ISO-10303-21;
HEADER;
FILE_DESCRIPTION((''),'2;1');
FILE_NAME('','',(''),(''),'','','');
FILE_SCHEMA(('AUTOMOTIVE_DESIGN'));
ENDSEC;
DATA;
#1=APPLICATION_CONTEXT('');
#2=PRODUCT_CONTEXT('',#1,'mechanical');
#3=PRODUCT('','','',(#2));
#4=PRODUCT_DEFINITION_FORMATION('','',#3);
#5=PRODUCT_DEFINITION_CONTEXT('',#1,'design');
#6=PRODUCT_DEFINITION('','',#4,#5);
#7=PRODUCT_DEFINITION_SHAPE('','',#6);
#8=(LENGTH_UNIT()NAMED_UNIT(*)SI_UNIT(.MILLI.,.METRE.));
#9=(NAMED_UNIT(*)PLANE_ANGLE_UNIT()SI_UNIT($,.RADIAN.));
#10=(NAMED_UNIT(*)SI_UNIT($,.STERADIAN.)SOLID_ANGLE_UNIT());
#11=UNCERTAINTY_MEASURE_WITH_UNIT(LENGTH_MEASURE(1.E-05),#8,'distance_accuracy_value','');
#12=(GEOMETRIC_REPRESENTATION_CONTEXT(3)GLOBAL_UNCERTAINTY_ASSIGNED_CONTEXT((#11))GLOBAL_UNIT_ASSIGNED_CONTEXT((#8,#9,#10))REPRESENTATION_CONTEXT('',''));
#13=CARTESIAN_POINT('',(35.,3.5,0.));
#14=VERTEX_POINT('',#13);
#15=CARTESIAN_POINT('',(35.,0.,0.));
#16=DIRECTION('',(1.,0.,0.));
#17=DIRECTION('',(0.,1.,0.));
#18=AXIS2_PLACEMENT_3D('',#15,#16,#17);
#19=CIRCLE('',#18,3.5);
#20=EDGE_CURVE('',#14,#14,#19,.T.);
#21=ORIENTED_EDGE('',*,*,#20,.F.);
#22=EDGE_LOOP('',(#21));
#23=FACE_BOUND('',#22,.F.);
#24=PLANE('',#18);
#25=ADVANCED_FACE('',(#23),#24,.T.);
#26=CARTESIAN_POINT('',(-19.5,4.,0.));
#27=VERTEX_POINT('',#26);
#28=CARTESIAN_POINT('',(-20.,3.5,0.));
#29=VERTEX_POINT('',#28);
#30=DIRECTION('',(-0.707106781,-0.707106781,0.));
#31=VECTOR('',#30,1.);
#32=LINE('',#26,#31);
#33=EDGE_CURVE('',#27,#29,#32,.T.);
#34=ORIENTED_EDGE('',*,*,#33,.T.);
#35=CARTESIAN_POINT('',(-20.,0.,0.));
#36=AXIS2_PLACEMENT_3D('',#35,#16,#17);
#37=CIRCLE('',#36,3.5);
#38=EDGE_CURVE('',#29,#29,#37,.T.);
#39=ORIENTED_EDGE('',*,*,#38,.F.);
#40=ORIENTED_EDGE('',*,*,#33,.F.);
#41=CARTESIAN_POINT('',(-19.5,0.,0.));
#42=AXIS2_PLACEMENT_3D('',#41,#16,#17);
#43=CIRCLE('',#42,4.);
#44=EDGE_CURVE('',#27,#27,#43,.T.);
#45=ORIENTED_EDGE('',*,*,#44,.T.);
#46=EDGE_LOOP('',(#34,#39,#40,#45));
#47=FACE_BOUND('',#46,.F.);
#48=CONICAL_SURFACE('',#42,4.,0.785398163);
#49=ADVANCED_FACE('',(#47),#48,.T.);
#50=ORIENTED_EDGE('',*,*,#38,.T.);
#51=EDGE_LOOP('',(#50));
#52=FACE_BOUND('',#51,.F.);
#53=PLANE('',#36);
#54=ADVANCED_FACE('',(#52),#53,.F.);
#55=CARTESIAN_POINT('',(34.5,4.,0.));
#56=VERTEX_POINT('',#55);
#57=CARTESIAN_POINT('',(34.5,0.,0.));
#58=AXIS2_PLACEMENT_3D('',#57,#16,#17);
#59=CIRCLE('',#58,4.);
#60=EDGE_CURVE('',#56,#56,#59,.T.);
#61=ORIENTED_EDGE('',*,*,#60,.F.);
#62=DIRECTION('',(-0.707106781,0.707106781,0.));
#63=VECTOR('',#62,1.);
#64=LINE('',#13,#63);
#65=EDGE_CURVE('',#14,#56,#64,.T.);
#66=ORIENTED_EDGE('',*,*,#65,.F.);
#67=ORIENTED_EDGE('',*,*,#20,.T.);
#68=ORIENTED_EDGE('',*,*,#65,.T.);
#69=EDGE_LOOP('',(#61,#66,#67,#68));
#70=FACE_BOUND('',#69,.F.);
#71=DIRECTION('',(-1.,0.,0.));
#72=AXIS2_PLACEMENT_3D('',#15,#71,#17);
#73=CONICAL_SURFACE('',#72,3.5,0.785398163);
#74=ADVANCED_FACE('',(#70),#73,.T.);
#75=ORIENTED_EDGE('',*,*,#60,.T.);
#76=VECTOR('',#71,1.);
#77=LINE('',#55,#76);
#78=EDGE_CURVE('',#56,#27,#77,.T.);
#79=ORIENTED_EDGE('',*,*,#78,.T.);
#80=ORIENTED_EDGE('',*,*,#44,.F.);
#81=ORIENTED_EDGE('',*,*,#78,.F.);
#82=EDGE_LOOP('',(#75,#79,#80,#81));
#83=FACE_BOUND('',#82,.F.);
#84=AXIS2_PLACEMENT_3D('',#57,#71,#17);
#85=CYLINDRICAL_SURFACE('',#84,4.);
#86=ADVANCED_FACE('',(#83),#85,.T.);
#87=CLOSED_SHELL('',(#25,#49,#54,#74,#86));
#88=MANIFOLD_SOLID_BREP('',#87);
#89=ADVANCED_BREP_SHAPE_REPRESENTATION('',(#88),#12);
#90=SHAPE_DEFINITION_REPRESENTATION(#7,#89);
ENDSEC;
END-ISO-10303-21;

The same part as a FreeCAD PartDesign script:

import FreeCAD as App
import Part
import Sketcher
from FreeCAD import Vector
Q = App.Units.Quantity


def add_polygon(sketch, points):
    """Adds a closed chain of lines whose ends are joined by coincident constraints."""
    first, n = sketch.GeometryCount, len(points)
    for a, b in zip(points, points[1:] + points[:1]):
        sketch.addGeometry(Part.LineSegment(App.Vector(*a, 0), App.Vector(*b, 0)), False)
    for i in range(n):
        sketch.addConstraint(Sketcher.Constraint("Coincident", first + i, 2, first + (i + 1) % n, 1))

doc = App.newDocument("Part")
body = doc.addObject("PartDesign::Body", "Body")

sketch1 = doc.addObject("Sketcher::SketchObject", "Sketch")
body.addObject(sketch1)
sketch1.AttachmentSupport = (doc.XY_Plane, [""])
sketch1.MapMode = "FlatFace"
add_polygon(sketch1, [(-20, 3.5), (-20, 0), (35, 0), (35, 3.5), (34.5, 4), (-19.5, 4)])
sketch1.addConstraint([
    Sketcher.Constraint("Vertical", 0),
    Sketcher.Constraint("Horizontal", 1),
    Sketcher.Constraint("Vertical", 2),
    Sketcher.Constraint("Horizontal", 4),
    Sketcher.Constraint("PointOnObject", 0, 2, -1),
    Sketcher.Constraint("Perpendicular", 3, 5),
    Sketcher.Constraint("Horizontal", 2, 2, 5, 2),
    Sketcher.Constraint("Equal", 3, 5),
    Sketcher.Constraint("DistanceX", 0, 2, -1, 1, Q("20 mm")),
    Sketcher.Constraint("DistanceX", -1, 1, 1, 2, Q("35 mm")),
    Sketcher.Constraint("DistanceX", 3, 2, 2, 2, Q("0.5 mm")),
    Sketcher.Constraint("DistanceY", 0, 2, 0, 1, Q("3.5 mm")),
])
revolution = doc.addObject("PartDesign::Revolution", "Revolution")
body.addObject(revolution)
revolution.Profile = sketch1
revolution.ReferenceAxis = (sketch1, ["H_Axis"])
revolution.Angle = 360

doc.recompute()
